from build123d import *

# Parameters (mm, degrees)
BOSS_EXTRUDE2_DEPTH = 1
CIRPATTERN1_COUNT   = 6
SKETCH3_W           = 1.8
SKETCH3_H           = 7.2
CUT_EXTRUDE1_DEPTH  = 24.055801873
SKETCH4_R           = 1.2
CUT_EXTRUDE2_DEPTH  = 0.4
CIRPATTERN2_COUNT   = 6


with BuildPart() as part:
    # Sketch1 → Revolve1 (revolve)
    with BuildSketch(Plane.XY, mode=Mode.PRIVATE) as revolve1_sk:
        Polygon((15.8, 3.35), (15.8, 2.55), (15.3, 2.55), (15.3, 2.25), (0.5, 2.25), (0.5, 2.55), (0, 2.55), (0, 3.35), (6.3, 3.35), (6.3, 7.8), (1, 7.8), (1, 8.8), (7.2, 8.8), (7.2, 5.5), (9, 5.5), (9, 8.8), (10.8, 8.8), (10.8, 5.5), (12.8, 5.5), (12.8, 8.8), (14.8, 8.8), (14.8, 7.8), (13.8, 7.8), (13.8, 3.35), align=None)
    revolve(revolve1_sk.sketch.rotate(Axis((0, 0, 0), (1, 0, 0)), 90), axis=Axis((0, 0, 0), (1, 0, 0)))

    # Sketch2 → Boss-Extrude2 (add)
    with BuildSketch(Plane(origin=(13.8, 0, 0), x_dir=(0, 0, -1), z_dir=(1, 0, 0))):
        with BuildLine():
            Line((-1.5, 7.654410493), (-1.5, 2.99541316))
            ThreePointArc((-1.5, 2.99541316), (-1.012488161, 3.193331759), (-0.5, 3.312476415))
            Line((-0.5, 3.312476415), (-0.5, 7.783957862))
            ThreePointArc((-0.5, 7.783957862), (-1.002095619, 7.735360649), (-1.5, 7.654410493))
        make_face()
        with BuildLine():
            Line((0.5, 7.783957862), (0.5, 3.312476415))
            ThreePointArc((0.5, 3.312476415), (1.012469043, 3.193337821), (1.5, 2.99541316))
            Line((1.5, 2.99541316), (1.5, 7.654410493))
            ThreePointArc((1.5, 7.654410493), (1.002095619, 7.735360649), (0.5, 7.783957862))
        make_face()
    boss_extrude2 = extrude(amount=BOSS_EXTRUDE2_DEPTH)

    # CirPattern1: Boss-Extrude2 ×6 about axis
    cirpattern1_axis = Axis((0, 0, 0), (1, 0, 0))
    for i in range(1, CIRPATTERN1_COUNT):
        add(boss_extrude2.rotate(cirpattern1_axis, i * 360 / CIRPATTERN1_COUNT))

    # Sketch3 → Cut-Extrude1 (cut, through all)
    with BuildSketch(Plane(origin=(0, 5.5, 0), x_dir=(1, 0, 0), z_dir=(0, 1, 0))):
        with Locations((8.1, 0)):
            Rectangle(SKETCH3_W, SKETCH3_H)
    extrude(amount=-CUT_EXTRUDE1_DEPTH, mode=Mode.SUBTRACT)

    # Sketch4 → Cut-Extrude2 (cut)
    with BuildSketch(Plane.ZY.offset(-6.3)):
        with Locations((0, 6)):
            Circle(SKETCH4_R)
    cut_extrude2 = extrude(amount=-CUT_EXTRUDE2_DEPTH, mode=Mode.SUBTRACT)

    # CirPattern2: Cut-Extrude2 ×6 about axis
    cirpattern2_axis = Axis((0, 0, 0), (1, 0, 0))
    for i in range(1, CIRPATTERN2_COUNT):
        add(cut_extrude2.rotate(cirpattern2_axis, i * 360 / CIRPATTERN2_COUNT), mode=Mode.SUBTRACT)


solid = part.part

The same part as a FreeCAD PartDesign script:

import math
import FreeCAD as App
import Part
import Sketcher

V = App.Vector
Q = App.Units.Quantity

doc = App.newDocument("Part")
body = doc.addObject("PartDesign::Body", "Body")

sketch1 = body.newObject("Sketcher::SketchObject", "Sketch")
sketch1.AttachmentSupport = (doc.getObject("XY_Plane"), [""])
sketch1.MapMode = "FlatFace"
sketch1.addGeometry(Part.LineSegment(V(15.8, 2.55, 0), V(15.8, 3.35, 0)), False)
sketch1.addGeometry(Part.LineSegment(V(15.8, 3.35, 0), V(13.8, 3.35, 0)), False)
sketch1.addGeometry(Part.LineSegment(V(13.8, 3.35, 0), V(13.8, 7.8, 0)), False)
sketch1.addGeometry(Part.LineSegment(V(13.8, 7.8, 0), V(14.8, 7.8, 0)), False)
sketch1.addGeometry(Part.LineSegment(V(14.8, 7.8, 0), V(14.8, 8.8, 0)), False)
sketch1.addGeometry(Part.LineSegment(V(14.8, 8.8, 0), V(12.8, 8.8, 0)), False)
sketch1.addGeometry(Part.LineSegment(V(12.8, 8.8, 0), V(12.8, 5.5, 0)), False)
sketch1.addGeometry(Part.LineSegment(V(12.8, 5.5, 0), V(10.8, 5.5, 0)), False)
sketch1.addGeometry(Part.LineSegment(V(10.8, 5.5, 0), V(10.8, 8.8, 0)), False)
sketch1.addGeometry(Part.LineSegment(V(10.8, 8.8, 0), V(9, 8.8, 0)), False)
sketch1.addGeometry(Part.LineSegment(V(9, 8.8, 0), V(9, 5.5, 0)), False)
sketch1.addGeometry(Part.LineSegment(V(9, 5.5, 0), V(7.2, 5.5, 0)), False)
sketch1.addGeometry(Part.LineSegment(V(7.2, 5.5, 0), V(7.2, 8.8, 0)), False)
sketch1.addGeometry(Part.LineSegment(V(7.2, 8.8, 0), V(1, 8.8, 0)), False)
sketch1.addGeometry(Part.LineSegment(V(1, 8.8, 0), V(1, 7.8, 0)), False)
sketch1.addGeometry(Part.LineSegment(V(1, 7.8, 0), V(6.3, 7.8, 0)), False)
sketch1.addGeometry(Part.LineSegment(V(6.3, 7.8, 0), V(6.3, 3.35, 0)), False)
sketch1.addGeometry(Part.LineSegment(V(6.3, 3.35, 0), V(0, 3.35, 0)), False)
sketch1.addGeometry(Part.LineSegment(V(0, 3.35, 0), V(0, 2.55, 0)), False)
sketch1.addGeometry(Part.LineSegment(V(0, 2.55, 0), V(0.5, 2.55, 0)), False)
sketch1.addGeometry(Part.LineSegment(V(0.5, 2.55, 0), V(0.5, 2.25, 0)), False)
sketch1.addGeometry(Part.LineSegment(V(0.5, 2.25, 0), V(15.3, 2.25, 0)), False)
sketch1.addGeometry(Part.LineSegment(V(15.3, 2.25, 0), V(15.3, 2.55, 0)), False)
sketch1.addGeometry(Part.LineSegment(V(15.3, 2.55, 0), V(15.8, 2.55, 0)), False)
sketch1.addConstraint(Sketcher.Constraint("Coincident", 0, 2, 1, 1))
sketch1.addConstraint(Sketcher.Constraint("Coincident", 1, 2, 2, 1))
sketch1.addConstraint(Sketcher.Constraint("Coincident", 2, 2, 3, 1))
sketch1.addConstraint(Sketcher.Constraint("Coincident", 3, 2, 4, 1))
sketch1.addConstraint(Sketcher.Constraint("Coincident", 4, 2, 5, 1))
sketch1.addConstraint(Sketcher.Constraint("Coincident", 5, 2, 6, 1))
sketch1.addConstraint(Sketcher.Constraint("Coincident", 6, 2, 7, 1))
sketch1.addConstraint(Sketcher.Constraint("Coincident", 7, 2, 8, 1))
sketch1.addConstraint(Sketcher.Constraint("Coincident", 8, 2, 9, 1))
sketch1.addConstraint(Sketcher.Constraint("Coincident", 9, 2, 10, 1))
sketch1.addConstraint(Sketcher.Constraint("Coincident", 10, 2, 11, 1))
sketch1.addConstraint(Sketcher.Constraint("Coincident", 11, 2, 12, 1))
sketch1.addConstraint(Sketcher.Constraint("Coincident", 12, 2, 13, 1))
sketch1.addConstraint(Sketcher.Constraint("Coincident", 13, 2, 14, 1))
sketch1.addConstraint(Sketcher.Constraint("Coincident", 14, 2, 15, 1))
sketch1.addConstraint(Sketcher.Constraint("Coincident", 15, 2, 16, 1))
sketch1.addConstraint(Sketcher.Constraint("Coincident", 16, 2, 17, 1))
sketch1.addConstraint(Sketcher.Constraint("Coincident", 17, 2, 18, 1))
sketch1.addConstraint(Sketcher.Constraint("Coincident", 18, 2, 19, 1))
sketch1.addConstraint(Sketcher.Constraint("Coincident", 19, 2, 20, 1))
sketch1.addConstraint(Sketcher.Constraint("Coincident", 20, 2, 21, 1))
sketch1.addConstraint(Sketcher.Constraint("Coincident", 21, 2, 22, 1))
sketch1.addConstraint(Sketcher.Constraint("Coincident", 22, 2, 23, 1))
sketch1.addConstraint(Sketcher.Constraint("Coincident", 23, 2, 0, 1))
sketch1.addConstraint(Sketcher.Constraint("Vertical", 0))
sketch1.addConstraint(Sketcher.Constraint("Horizontal", 1))
sketch1.addConstraint(Sketcher.Constraint("Vertical", 2))
sketch1.addConstraint(Sketcher.Constraint("Horizontal", 3))
sketch1.addConstraint(Sketcher.Constraint("Vertical", 4))
sketch1.addConstraint(Sketcher.Constraint("Horizontal", 5))
sketch1.addConstraint(Sketcher.Constraint("Vertical", 6))
sketch1.addConstraint(Sketcher.Constraint("Horizontal", 7))
sketch1.addConstraint(Sketcher.Constraint("Vertical", 8))
sketch1.addConstraint(Sketcher.Constraint("Horizontal", 9))
sketch1.addConstraint(Sketcher.Constraint("Vertical", 10))
sketch1.addConstraint(Sketcher.Constraint("Horizontal", 11))
sketch1.addConstraint(Sketcher.Constraint("Vertical", 12))
sketch1.addConstraint(Sketcher.Constraint("Horizontal", 13))
sketch1.addConstraint(Sketcher.Constraint("Vertical", 14))
sketch1.addConstraint(Sketcher.Constraint("Horizontal", 15))
sketch1.addConstraint(Sketcher.Constraint("Vertical", 16))
sketch1.addConstraint(Sketcher.Constraint("Horizontal", 17))
sketch1.addConstraint(Sketcher.Constraint("Vertical", 18))
sketch1.addConstraint(Sketcher.Constraint("Horizontal", 19))
sketch1.addConstraint(Sketcher.Constraint("Vertical", 20))
sketch1.addConstraint(Sketcher.Constraint("Horizontal", 21))
sketch1.addConstraint(Sketcher.Constraint("Vertical", 22))
sketch1.addConstraint(Sketcher.Constraint("Horizontal", 23))
sketch1.addConstraint(Sketcher.Constraint("PointOnObject", 17, 2, -2))
sketch1.addConstraint(Sketcher.Constraint("Horizontal", 5, 2, 8, 2))
sketch1.addConstraint(Sketcher.Constraint("Horizontal", 7, 2, 10, 2))
sketch1.addConstraint(Sketcher.Constraint("Horizontal", 9, 2, 12, 2))
sketch1.addConstraint(Sketcher.Constraint("Horizontal", 3, 2, 14, 2))
sketch1.addConstraint(Sketcher.Constraint("Horizontal", 1, 2, 16, 2))
sketch1.addConstraint(Sketcher.Constraint("Horizontal", 19, 2, 22, 2))
sketch1.addConstraint(Sketcher.Constraint("Equal", 1, 5))
sketch1.addConstraint(Sketcher.Constraint("Equal", 5, 7))
sketch1.addConstraint(Sketcher.Constraint("Equal", 9, 11))
sketch1.addConstraint(Sketcher.Constraint("Equal", 19, 23))
sketch1.addConstraint(Sketcher.Constraint("Equal", 3, 4))
sketch1.addConstraint(Sketcher.Constraint("DistanceX", 1, 2, 1, 1, Q("2 mm")))
sketch1.addConstraint(Sketcher.Constraint("DistanceX", 3, 1, 3, 2, Q("1 mm")))
sketch1.addConstraint(Sketcher.Constraint("DistanceX", 9, 2, 9, 1, Q("1.8 mm")))
sketch1.addConstraint(Sketcher.Constraint("DistanceX", 13, 2, 13, 1, Q("6.2 mm")))
sketch1.addConstraint(Sketcher.Constraint("DistanceX", 15, 1, 15, 2, Q("5.3 mm")))
sketch1.addConstraint(Sketcher.Constraint("DistanceX", 17, 2, 17, 1, Q("6.3 mm")))
sketch1.addConstraint(Sketcher.Constraint("DistanceX", 19, 1, 19, 2, Q("0.5 mm")))
sketch1.addConstraint(Sketcher.Constraint("DistanceY", 0, 1, 0, 2, Q("0.8 mm")))
sketch1.addConstraint(Sketcher.Constraint("DistanceY", 6, 2, 6, 1, Q("3.3 mm")))
sketch1.addConstraint(Sketcher.Constraint("DistanceY", 20, 2, 20, 1, Q("0.3 mm")))
sketch1.addConstraint(Sketcher.Constraint("DistanceY", 2, 1, 2, 2, Q("4.45 mm")))
sketch1.addConstraint(Sketcher.Constraint("DistanceY", -1, 1, 2, 2, Q("7.8 mm")))
revolution = body.newObject("PartDesign::Revolution", "Revolution")
revolution.Profile = sketch1
revolution.ReferenceAxis = (sketch1, ["H_Axis"])
revolution.Angle = 360

sketch2 = body.newObject("Sketcher::SketchObject", "Sketch001")
sketch2.AttachmentSupport = (doc.getObject("YZ_Plane"), [""])
sketch2.MapMode = "FlatFace"
sketch2.AttachmentOffset = App.Placement(V(0, 0, 13.8), App.Rotation())
sketch2.addGeometry(Part.LineSegment(V(7.7, 1.5, 0), V(3, 1.5, 0)), False)
sketch2.addGeometry(Part.ArcOfCircle(Part.Circle(V(0, 0, 0), V(0, 0, 1), 3.4), math.radians(8.58), math.radians(26.6)), False)
sketch2.addGeometry(Part.LineSegment(V(3.3, 0.5, 0), V(7.8, 0.5, 0)), False)
sketch2.addGeometry(Part.ArcOfCircle(Part.Circle(V(0, 0, 0), V(0, 0, 1), 7.8), math.radians(3.68), math.radians(11.09)), False)
sketch2.addGeometry(Part.LineSegment(V(7.8, -0.5, 0), V(3.3, -0.5, 0)), False)
sketch2.addGeometry(Part.ArcOfCircle(Part.Circle(V(0, 0, 0), V(0, 0, 1), 3.3), math.radians(-26.6), math.radians(-8.58)), False)
sketch2.addGeometry(Part.LineSegment(V(3, -1.5, 0), V(7.7, -1.5, 0)), False)
sketch2.addGeometry(Part.ArcOfCircle(Part.Circle(V(0, 0, 0), V(0, 0, 1), 7.8), math.radians(-11.09), math.radians(-3.68)), False)
sketch2.addConstraint(Sketcher.Constraint("Coincident", 0, 2, 1, 2))
sketch2.addConstraint(Sketcher.Constraint("Coincident", 1, 1, 2, 1))
sketch2.addConstraint(Sketcher.Constraint("Coincident", 2, 2, 3, 1))
sketch2.addConstraint(Sketcher.Constraint("Coincident", 3, 2, 0, 1))
sketch2.addConstraint(Sketcher.Constraint("Coincident", 4, 2, 5, 2))
sketch2.addConstraint(Sketcher.Constraint("Coincident", 5, 1, 6, 1))
sketch2.addConstraint(Sketcher.Constraint("Coincident", 6, 2, 7, 1))
sketch2.addConstraint(Sketcher.Constraint("Coincident", 7, 2, 4, 1))
sketch2.addConstraint(Sketcher.Constraint("Horizontal", 0))
sketch2.addConstraint(Sketcher.Constraint("Horizontal", 2))
sketch2.addConstraint(Sketcher.Constraint("Horizontal", 4))
sketch2.addConstraint(Sketcher.Constraint("Horizontal", 6))
sketch2.addConstraint(Sketcher.Constraint("Coincident", 1, 3, -1, 1))
sketch2.addConstraint(Sketcher.Constraint("Coincident", 3, 3, -1, 1))
sketch2.addConstraint(Sketcher.Constraint("Coincident", 5, 3, -1, 1))
sketch2.addConstraint(Sketcher.Constraint("Coincident", 7, 3, -1, 1))
sketch2.addConstraint(Sketcher.Constraint("Equal", 1, 5))
sketch2.addConstraint(Sketcher.Constraint("Equal", 3, 7))
sketch2.addConstraint(Sketcher.Constraint("Vertical", 1, 1, 4, 2))
sketch2.addConstraint(Sketcher.Constraint("Vertical", 0, 2, 5, 1))
sketch2.addConstraint(Sketcher.Constraint("Radius", 3, Q("7.8 mm")))
sketch2.addConstraint(Sketcher.Constraint("Radius", 1, Q("3.35 mm")))
sketch2.addConstraint(Sketcher.Constraint("DistanceY", 1, 1, 0, 2, Q("1 mm")))
sketch2.addConstraint(Sketcher.Constraint("DistanceY", 4, 2, 1, 1, Q("1 mm")))
pad1 = body.newObject("PartDesign::Pad", "Pad")
pad1.Profile = sketch2
pad1.Length = 1
doc.recompute()

polarpattern = body.newObject("PartDesign::PolarPattern", "PolarPattern")
polarpattern.Originals = [pad1]
polarpattern.Axis = (doc.getObject("X_Axis"), [""])
polarpattern.Angle = 360
polarpattern.Occurrences = 6
body.Tip = polarpattern

sketch3 = body.newObject("Sketcher::SketchObject", "Sketch002")
sketch3.AttachmentSupport = (doc.getObject("XZ_Plane"), [""])
sketch3.MapMode = "FlatFace"
sketch3.AttachmentOffset = App.Placement(V(0, 0, -5.5), App.Rotation())
sketch3.addGeometry(Part.LineSegment(V(7.2, -3.6, 0), V(7.2, 3.6, 0)), False)
sketch3.addGeometry(Part.LineSegment(V(7.2, 3.6, 0), V(9, 3.6, 0)), False)
sketch3.addGeometry(Part.LineSegment(V(9, 3.6, 0), V(9, -3.6, 0)), False)
sketch3.addGeometry(Part.LineSegment(V(9, -3.6, 0), V(7.2, -3.6, 0)), False)
sketch3.addConstraint(Sketcher.Constraint("Coincident", 0, 2, 1, 1))
sketch3.addConstraint(Sketcher.Constraint("Coincident", 1, 2, 2, 1))
sketch3.addConstraint(Sketcher.Constraint("Coincident", 2, 2, 3, 1))
sketch3.addConstraint(Sketcher.Constraint("Coincident", 3, 2, 0, 1))
sketch3.addConstraint(Sketcher.Constraint("Vertical", 0))
sketch3.addConstraint(Sketcher.Constraint("Horizontal", 1))
sketch3.addConstraint(Sketcher.Constraint("Vertical", 2))
sketch3.addConstraint(Sketcher.Constraint("Horizontal", 3))
sketch3.addConstraint(Sketcher.Constraint("DistanceX", 1, 1, 1, 2, Q("1.8 mm")))
sketch3.addConstraint(Sketcher.Constraint("DistanceY", 0, 1, 0, 2, Q("7.2 mm")))
sketch3.addConstraint(Sketcher.Constraint("DistanceX", -1, 1, 1, 2, Q("9 mm")))
sketch3.addConstraint(Sketcher.Constraint("DistanceY", -1, 1, 0, 2, Q("3.6 mm")))
pocket1 = body.newObject("PartDesign::Pocket", "Pocket")
pocket1.Profile = sketch3
pocket1.Type = "ThroughAll"
pocket1.Reversed = True

sketch4 = body.newObject("Sketcher::SketchObject", "Sketch003")
sketch4.AttachmentSupport = (doc.getObject("YZ_Plane"), [""])
sketch4.MapMode = "FlatFace"
sketch4.AttachmentOffset = App.Placement(V(0, 0, 6.3), App.Rotation())
sketch4.addGeometry(Part.Circle(V(6, 0, 0), V(0, 0, 1), 1.2), False)
sketch4.addConstraint(Sketcher.Constraint("PointOnObject", 0, 3, -1))
sketch4.addConstraint(Sketcher.Constraint("Diameter", 0, Q("2.4 mm")))
sketch4.addConstraint(Sketcher.Constraint("DistanceX", -1, 1, 0, 3, Q("6 mm")))
pocket2 = body.newObject("PartDesign::Pocket", "Pocket001")
pocket2.Profile = sketch4
pocket2.Length = 0.4
pocket2.Reversed = True
doc.recompute()

polarpattern2 = body.newObject("PartDesign::PolarPattern", "PolarPattern001")
polarpattern2.Originals = [pocket2]
polarpattern2.Axis = (doc.getObject("X_Axis"), [""])
polarpattern2.Angle = 360
polarpattern2.Occurrences = 6
body.Tip = polarpattern2

doc.recompute()
